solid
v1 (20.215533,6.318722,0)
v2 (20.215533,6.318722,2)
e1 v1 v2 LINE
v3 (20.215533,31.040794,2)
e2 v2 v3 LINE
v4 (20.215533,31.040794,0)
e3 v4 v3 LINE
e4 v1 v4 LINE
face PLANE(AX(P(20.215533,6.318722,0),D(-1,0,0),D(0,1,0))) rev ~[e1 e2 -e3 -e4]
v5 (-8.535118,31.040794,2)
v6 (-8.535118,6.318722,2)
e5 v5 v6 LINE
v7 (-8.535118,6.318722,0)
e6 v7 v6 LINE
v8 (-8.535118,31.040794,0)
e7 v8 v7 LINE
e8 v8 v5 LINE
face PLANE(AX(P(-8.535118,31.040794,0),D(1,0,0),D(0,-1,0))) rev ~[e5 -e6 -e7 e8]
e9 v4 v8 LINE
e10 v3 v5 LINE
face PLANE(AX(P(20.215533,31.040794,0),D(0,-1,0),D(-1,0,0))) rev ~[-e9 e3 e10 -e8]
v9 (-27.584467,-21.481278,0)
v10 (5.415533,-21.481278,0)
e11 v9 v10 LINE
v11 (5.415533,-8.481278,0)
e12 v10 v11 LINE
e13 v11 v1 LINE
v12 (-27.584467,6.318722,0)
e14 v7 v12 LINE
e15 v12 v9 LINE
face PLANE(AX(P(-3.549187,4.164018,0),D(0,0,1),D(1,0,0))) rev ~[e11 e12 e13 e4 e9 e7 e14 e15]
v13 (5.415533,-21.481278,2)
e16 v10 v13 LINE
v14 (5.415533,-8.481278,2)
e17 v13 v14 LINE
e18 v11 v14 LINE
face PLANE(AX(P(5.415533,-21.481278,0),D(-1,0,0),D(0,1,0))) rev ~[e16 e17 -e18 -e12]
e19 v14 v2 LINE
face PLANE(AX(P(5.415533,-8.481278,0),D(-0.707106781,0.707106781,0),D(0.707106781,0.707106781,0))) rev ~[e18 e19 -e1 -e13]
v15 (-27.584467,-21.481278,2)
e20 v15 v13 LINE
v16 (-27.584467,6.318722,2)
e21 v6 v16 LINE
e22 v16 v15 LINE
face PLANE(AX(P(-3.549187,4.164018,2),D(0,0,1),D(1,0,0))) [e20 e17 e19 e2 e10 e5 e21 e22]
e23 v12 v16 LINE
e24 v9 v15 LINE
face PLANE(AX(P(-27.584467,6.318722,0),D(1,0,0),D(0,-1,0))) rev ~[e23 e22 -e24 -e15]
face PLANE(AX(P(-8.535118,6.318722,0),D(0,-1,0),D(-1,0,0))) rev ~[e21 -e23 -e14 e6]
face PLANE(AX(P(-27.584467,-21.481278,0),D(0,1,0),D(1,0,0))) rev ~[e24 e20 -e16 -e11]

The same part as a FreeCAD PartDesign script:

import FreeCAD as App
import Part
import Sketcher

V = App.Vector
Q = App.Units.Quantity

doc = App.newDocument("Part")
body = doc.addObject("PartDesign::Body", "Body")

sketch1 = body.newObject("Sketcher::SketchObject", "Sketch")
sketch1.AttachmentSupport = (doc.getObject("XY_Plane"), [""])
sketch1.MapMode = "FlatFace"
sketch1.addGeometry([
    Part.LineSegment(V(-27.584467, 6.318722, 0), V(-27.584467, -21.481278, 0)),
    Part.LineSegment(V(-27.584467, -21.481278, 0), V(5.415533, -21.481278, 0)),
    Part.LineSegment(V(5.415533, -21.481278, 0), V(5.415533, -8.481278, 0)),
    Part.LineSegment(V(5.415533, -8.481278, 0), V(20.215533, 6.318722, 0)),
    Part.LineSegment(V(20.215533, 6.318722, 0), V(20.215533, 31.040794, 0)),
    Part.LineSegment(V(20.215533, 31.040794, 0), V(-8.535118, 31.040794, 0)),
    Part.LineSegment(V(-8.535118, 31.040794, 0), V(-8.535118, 6.318722, 0)),
    Part.LineSegment(V(-8.535118, 6.318722, 0), V(-27.584467, 6.318722, 0)),
], False)
sketch1.addConstraint([
    Sketcher.Constraint("Coincident", 0, 2, 1, 1),
    Sketcher.Constraint("Coincident", 1, 2, 2, 1),
    Sketcher.Constraint("Coincident", 2, 2, 3, 1),
    Sketcher.Constraint("Coincident", 3, 2, 4, 1),
    Sketcher.Constraint("Coincident", 4, 2, 5, 1),
    Sketcher.Constraint("Coincident", 5, 2, 6, 1),
    Sketcher.Constraint("Coincident", 6, 2, 7, 1),
    Sketcher.Constraint("Coincident", 7, 2, 0, 1),
    Sketcher.Constraint("Vertical", 0),
    Sketcher.Constraint("Horizontal", 1),
    Sketcher.Constraint("Vertical", 2),
    Sketcher.Constraint("Vertical", 4),
    Sketcher.Constraint("Horizontal", 5),
    Sketcher.Constraint("Vertical", 6),
    Sketcher.Constraint("Horizontal", 7),
    Sketcher.Constraint("Horizontal", 3, 2, 6, 2),
    Sketcher.Constraint("DistanceX", 1, 1, 1, 2, Q("33 mm")),
    Sketcher.Constraint("DistanceY", 2, 1, 2, 2, Q("13 mm")),
    Sketcher.Constraint("Angle", 3, Q("45 deg")),
    Sketcher.Constraint("DistanceY", 0, 2, 0, 1, Q("27.8 mm")),
    Sketcher.Constraint("DistanceX", 5, 2, 5, 1, Q("28.750651 mm")),
    Sketcher.Constraint("DistanceY", 4, 1, 4, 2, Q("24.722072 mm")),
    Sketcher.Constraint("DistanceX", 5, 2, -1, 1, Q("8.535118 mm")),
    Sketcher.Constraint("DistanceY", 0, 2, -1, 1, Q("21.481278 mm")),
])
pad1 = body.newObject("PartDesign::Pad", "Pad")
pad1.Profile = sketch1
pad1.Length = 2

doc.recompute()
